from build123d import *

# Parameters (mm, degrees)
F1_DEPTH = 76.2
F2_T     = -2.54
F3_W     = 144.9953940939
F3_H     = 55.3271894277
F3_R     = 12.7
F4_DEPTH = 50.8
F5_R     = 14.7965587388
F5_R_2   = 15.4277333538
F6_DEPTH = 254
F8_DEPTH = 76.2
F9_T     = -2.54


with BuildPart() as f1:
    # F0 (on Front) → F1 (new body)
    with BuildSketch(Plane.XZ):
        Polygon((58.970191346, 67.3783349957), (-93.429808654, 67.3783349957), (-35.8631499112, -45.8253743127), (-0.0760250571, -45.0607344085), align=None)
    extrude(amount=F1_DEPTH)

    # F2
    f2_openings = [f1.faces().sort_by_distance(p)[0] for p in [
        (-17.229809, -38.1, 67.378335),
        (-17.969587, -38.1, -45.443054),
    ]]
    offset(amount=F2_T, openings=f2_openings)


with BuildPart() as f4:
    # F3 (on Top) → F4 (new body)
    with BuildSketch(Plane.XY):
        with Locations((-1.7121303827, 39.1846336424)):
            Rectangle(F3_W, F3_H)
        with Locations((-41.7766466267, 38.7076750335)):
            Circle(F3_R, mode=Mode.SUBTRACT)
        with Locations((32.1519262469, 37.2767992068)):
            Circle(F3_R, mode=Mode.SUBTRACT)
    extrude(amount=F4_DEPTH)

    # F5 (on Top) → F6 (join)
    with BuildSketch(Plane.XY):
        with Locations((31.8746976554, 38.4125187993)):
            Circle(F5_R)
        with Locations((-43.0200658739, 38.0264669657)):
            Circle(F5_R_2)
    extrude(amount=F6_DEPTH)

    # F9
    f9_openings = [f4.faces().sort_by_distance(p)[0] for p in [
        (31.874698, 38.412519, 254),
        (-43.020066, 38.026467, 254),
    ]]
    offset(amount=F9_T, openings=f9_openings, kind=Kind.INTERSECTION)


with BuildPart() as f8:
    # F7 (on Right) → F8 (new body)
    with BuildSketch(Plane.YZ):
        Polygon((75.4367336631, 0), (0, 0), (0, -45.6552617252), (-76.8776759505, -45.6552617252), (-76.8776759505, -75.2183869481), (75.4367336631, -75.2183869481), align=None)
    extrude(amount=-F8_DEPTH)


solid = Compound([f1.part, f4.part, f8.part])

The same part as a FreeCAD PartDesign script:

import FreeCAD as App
import Part
import Sketcher
from FreeCAD import Vector
Q = App.Units.Quantity


def faces_at(feature, points):
    """Names of the faces that lie closest to the given points."""
    faces = feature.Shape.Faces
    near = lambda p: min(range(len(faces)), key=lambda i: faces[i].distToShape(Part.Vertex(*p))[0])
    return sorted({f"Face{near(p) + 1}" for p in points})

doc = App.newDocument("Part")
body = doc.addObject("PartDesign::Body", "Body")

sketch1 = body.newObject("Sketcher::SketchObject", "Sketch")
sketch1.AttachmentSupport = (doc.getObject("XZ_Plane"), [""])
sketch1.MapMode = "FlatFace"
sketch1.addGeometry(Part.LineSegment(Vector(59, 67, 0), Vector(-93, 67, 0)), False)
sketch1.addGeometry(Part.LineSegment(Vector(-93, 67, 0), Vector(-36, -46, 0)), False)
sketch1.addGeometry(Part.LineSegment(Vector(-36, -46, 0), Vector(0, -45, 0)), False)
sketch1.addGeometry(Part.LineSegment(Vector(0, -45, 0), Vector(59, 67, 0)), False)
sketch1.addConstraint(Sketcher.Constraint("Coincident", 0, 2, 1, 1))
sketch1.addConstraint(Sketcher.Constraint("Coincident", 1, 2, 2, 1))
sketch1.addConstraint(Sketcher.Constraint("Coincident", 2, 2, 3, 1))
sketch1.addConstraint(Sketcher.Constraint("Coincident", 3, 2, 0, 1))
sketch1.addConstraint(Sketcher.Constraint("Horizontal", 0))
sketch1.addConstraint(Sketcher.Constraint("Equal", 1, 3))
sketch1.addConstraint(Sketcher.Constraint("DistanceX", 0, 2, 0, 1, Q("6 in")))
sketch1.addConstraint(Sketcher.Constraint("Distance", 1, Q("5 in")))
sketch1.addConstraint(Sketcher.Constraint("DistanceX", 0, 2, -1, 1, Q("93.429809 mm")))
sketch1.addConstraint(Sketcher.Constraint("DistanceX", 1, 2, -1, 1, Q("35.86315 mm")))
sketch1.addConstraint(Sketcher.Constraint("DistanceY", 1, 2, 2, 2, Q("0.76464 mm")))
sketch1.addConstraint(Sketcher.Constraint("DistanceY", -1, 1, 0, 2, Q("67.378335 mm")))
pad1 = body.newObject("PartDesign::Pad", "Pad")
pad1.Profile = sketch1
pad1.Length = Q("3 in")
doc.recompute()

thickness = body.newObject("PartDesign::Thickness", "Thickness")
thickness.Base = (pad1, faces_at(pad1, [(-17.23, -38.1, 67.378), (-17.97, -38.1, -45.443)]))
thickness.Value = Q("0.1 in")
thickness.Reversed = True
thickness.Join = "Arc"
body2 = doc.addObject("PartDesign::Body", "Body001")

sketch2 = body2.newObject("Sketcher::SketchObject", "Sketch001")
sketch2.AttachmentSupport = (doc.getObject("XY_Plane001"), [""])
sketch2.MapMode = "FlatFace"
sketch2.addGeometry(Part.LineSegment(Vector(-74, 67, 0), Vector(-74, 12, 0)), False)
sketch2.addGeometry(Part.LineSegment(Vector(-74, 12, 0), Vector(71, 12, 0)), False)
sketch2.addGeometry(Part.LineSegment(Vector(71, 12, 0), Vector(71, 67, 0)), False)
sketch2.addGeometry(Part.LineSegment(Vector(71, 67, 0), Vector(-74, 67, 0)), False)
sketch2.addGeometry(Part.Circle(Vector(32, 37, 0), Vector(0, 0, 1), 13), False)
sketch2.addGeometry(Part.Circle(Vector(-42, 39, 0), Vector(0, 0, 1), 13), False)
sketch2.addConstraint(Sketcher.Constraint("Coincident", 0, 2, 1, 1))
sketch2.addConstraint(Sketcher.Constraint("Coincident", 1, 2, 2, 1))
sketch2.addConstraint(Sketcher.Constraint("Coincident", 2, 2, 3, 1))
sketch2.addConstraint(Sketcher.Constraint("Coincident", 3, 2, 0, 1))
sketch2.addConstraint(Sketcher.Constraint("Vertical", 0))
sketch2.addConstraint(Sketcher.Constraint("Horizontal", 1))
sketch2.addConstraint(Sketcher.Constraint("Vertical", 2))
sketch2.addConstraint(Sketcher.Constraint("Horizontal", 3))
sketch2.addConstraint(Sketcher.Constraint("Equal", 4, 5))
sketch2.addConstraint(Sketcher.Constraint("Diameter", 4, Q("1 in")))
sketch2.addConstraint(Sketcher.Constraint("DistanceY", 0, 2, 0, 1, Q("55.327189 mm")))
sketch2.addConstraint(Sketcher.Constraint("DistanceY", -1, 1, 4, 3, Q("37.276799 mm")))
sketch2.addConstraint(Sketcher.Constraint("DistanceX", 1, 1, 1, 2, Q("144.995394 mm")))
sketch2.addConstraint(Sketcher.Constraint("DistanceY", -1, 1, 0, 2, Q("11.521039 mm")))
sketch2.addConstraint(Sketcher.Constraint("DistanceX", 0, 2, 5, 3, Q("32.433181 mm")))
sketch2.addConstraint(Sketcher.Constraint("DistanceX", 4, 3, 1, 2, Q("38.63364 mm")))
sketch2.addConstraint(Sketcher.Constraint("DistanceX", -1, 1, 4, 3, Q("32.151926 mm")))
sketch2.addConstraint(Sketcher.Constraint("DistanceY", -1, 1, 5, 3, Q("38.707675 mm")))
pad2 = body2.newObject("PartDesign::Pad", "Pad001")
pad2.Profile = sketch2
pad2.Length = Q("2 in")

sketch3 = body2.newObject("Sketcher::SketchObject", "Sketch002")
sketch3.AttachmentSupport = (doc.getObject("XY_Plane001"), [""])
sketch3.MapMode = "FlatFace"
sketch3.addGeometry(Part.Circle(Vector(32, 38, 0), Vector(0, 0, 1), 15), False)
sketch3.addGeometry(Part.Circle(Vector(-43, 38, 0), Vector(0, 0, 1), 15), False)
sketch3.addConstraint(Sketcher.Constraint("Diameter", 0, Q("29.593117 mm")))
sketch3.addConstraint(Sketcher.Constraint("Diameter", 1, Q("30.855467 mm")))
sketch3.addConstraint(Sketcher.Constraint("DistanceY", -1, 1, 0, 3, Q("38.412519 mm")))
sketch3.addConstraint(Sketcher.Constraint("DistanceY", 1, 3, 0, 3, Q("0.386052 mm")))
sketch3.addConstraint(Sketcher.Constraint("DistanceX", -1, 1, 0, 3, Q("31.874698 mm")))
sketch3.addConstraint(Sketcher.Constraint("DistanceX", 1, 3, -1, 1, Q("43.020066 mm")))
pad3 = body2.newObject("PartDesign::Pad", "Pad002")
pad3.Profile = sketch3
pad3.Length = Q("10 in")
doc.recompute()

thickness2 = body2.newObject("PartDesign::Thickness", "Thickness001")
thickness2.Base = (pad3, faces_at(pad3, [(31.875, 38.413, 254), (-43.02, 38.026, 254)]))
thickness2.Value = Q("0.1 in")
thickness2.Reversed = True
thickness2.Join = "Intersection"
body3 = doc.addObject("PartDesign::Body", "Body002")

sketch4 = body3.newObject("Sketcher::SketchObject", "Sketch003")
sketch4.AttachmentSupport = (doc.getObject("YZ_Plane002"), [""])
sketch4.MapMode = "FlatFace"
sketch4.addGeometry(Part.LineSegment(Vector(75, 0, 0), Vector(0, 0, 0)), False)
sketch4.addGeometry(Part.LineSegment(Vector(0, 0, 0), Vector(0, -46, 0)), False)
sketch4.addGeometry(Part.LineSegment(Vector(0, -46, 0), Vector(-77, -46, 0)), False)
sketch4.addGeometry(Part.LineSegment(Vector(-77, -46, 0), Vector(-77, -75, 0)), False)
sketch4.addGeometry(Part.LineSegment(Vector(-77, -75, 0), Vector(75, -75, 0)), False)
sketch4.addGeometry(Part.LineSegment(Vector(75, -75, 0), Vector(75, 0, 0)), False)
sketch4.addConstraint(Sketcher.Constraint("Coincident", 0, 2, 1, 1))
sketch4.addConstraint(Sketcher.Constraint("Coincident", 1, 2, 2, 1))
sketch4.addConstraint(Sketcher.Constraint("Coincident", 2, 2, 3, 1))
sketch4.addConstraint(Sketcher.Constraint("Coincident", 3, 2, 4, 1))
sketch4.addConstraint(Sketcher.Constraint("Coincident", 4, 2, 5, 1))
sketch4.addConstraint(Sketcher.Constraint("Coincident", 5, 2, 0, 1))
sketch4.addConstraint(Sketcher.Constraint("Horizontal", 0))
sketch4.addConstraint(Sketcher.Constraint("Vertical", 1))
sketch4.addConstraint(Sketcher.Constraint("Horizontal", 2))
sketch4.addConstraint(Sketcher.Constraint("Vertical", 3))
sketch4.addConstraint(Sketcher.Constraint("Horizontal", 4))
sketch4.addConstraint(Sketcher.Constraint("Vertical", 5))
sketch4.addConstraint(Sketcher.Constraint("Coincident", 0, 2, -1, 1))
sketch4.addConstraint(Sketcher.Constraint("DistanceX", 4, 1, 4, 2, Q("152.31441 mm")))
sketch4.addConstraint(Sketcher.Constraint("DistanceY", 1, 2, 1, 1, Q("45.655262 mm")))
sketch4.addConstraint(Sketcher.Constraint("DistanceX", 0, 2, 0, 1, Q("75.436734 mm")))
sketch4.addConstraint(Sketcher.Constraint("DistanceY", 3, 2, 3, 1, Q("29.563125 mm")))
pad4 = body3.newObject("PartDesign::Pad", "Pad003")
pad4.Profile = sketch4
pad4.Length = Q("3 in")
pad4.Reversed = True

doc.recompute()
